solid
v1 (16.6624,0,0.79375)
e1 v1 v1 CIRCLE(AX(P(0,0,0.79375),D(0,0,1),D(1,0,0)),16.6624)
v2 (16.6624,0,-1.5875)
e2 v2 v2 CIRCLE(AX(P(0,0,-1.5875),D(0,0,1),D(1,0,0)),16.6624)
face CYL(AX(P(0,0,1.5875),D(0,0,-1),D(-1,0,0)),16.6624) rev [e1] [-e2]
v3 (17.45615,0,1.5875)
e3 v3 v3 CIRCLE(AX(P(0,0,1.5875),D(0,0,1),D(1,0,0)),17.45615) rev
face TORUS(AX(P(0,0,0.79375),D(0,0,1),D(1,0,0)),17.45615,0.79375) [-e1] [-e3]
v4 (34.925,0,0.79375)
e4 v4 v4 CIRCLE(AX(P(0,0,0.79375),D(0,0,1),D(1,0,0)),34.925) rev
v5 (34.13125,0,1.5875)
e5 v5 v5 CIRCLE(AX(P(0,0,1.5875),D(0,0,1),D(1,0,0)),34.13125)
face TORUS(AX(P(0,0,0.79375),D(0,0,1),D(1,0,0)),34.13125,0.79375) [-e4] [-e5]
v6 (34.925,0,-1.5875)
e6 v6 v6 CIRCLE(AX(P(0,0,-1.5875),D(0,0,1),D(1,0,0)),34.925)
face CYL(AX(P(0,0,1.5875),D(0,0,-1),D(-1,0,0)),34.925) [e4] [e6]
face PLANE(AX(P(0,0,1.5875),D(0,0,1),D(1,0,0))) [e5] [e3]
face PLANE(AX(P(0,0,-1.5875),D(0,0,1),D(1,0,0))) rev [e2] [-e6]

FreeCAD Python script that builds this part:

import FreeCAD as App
import Part
import Sketcher
Q = App.Units.Quantity


def edges_at(feature, points):
    """Names of the edges that pass closest to the given points."""
    edges = feature.Shape.Edges
    near = lambda p: min(range(len(edges)), key=lambda i: edges[i].distToShape(Part.Vertex(*p))[0])
    return sorted({f"Edge{near(p) + 1}" for p in points})

doc = App.newDocument("Part")
body = doc.addObject("PartDesign::Body", "Body")

# Sketch on XY plane
sketch1 = body.newObject("Sketcher::SketchObject", "Sketch")
sketch1.AttachmentSupport = (doc.getObject("XY_Plane"), [""])
sketch1.MapMode = "FlatFace"
sketch1.addGeometry([
    Part.Circle(App.Vector(0, 0, 0), App.Vector(0, 0, 1), 35),
    Part.Circle(App.Vector(0, 0, 0), App.Vector(0, 0, 1), 17),
], False)
sketch1.addConstraint([
    Sketcher.Constraint("Coincident", 0, 3, -1, 1),
    Sketcher.Constraint("Coincident", 1, 3, -1, 1),
    Sketcher.Constraint("Diameter", 0, Q("2.75 in")),
    Sketcher.Constraint("Diameter", 1, Q("1.312 in")),
])
pad1 = body.newObject("PartDesign::Pad", "Pad")
pad1.Profile = sketch1
pad1.Type = "TwoLengths"
pad1.Length = Q("0.0625 in")
pad1.Length2 = Q("0.0625 in")
doc.recompute()

fillet = body.newObject("PartDesign::Fillet", "Fillet")
fillet.Base = (pad1, edges_at(pad1, [(-34.925, 0, 1.587), (-16.662, 0, 1.587)]))
fillet.Radius = Q("0.03125 in")

doc.recompute()
